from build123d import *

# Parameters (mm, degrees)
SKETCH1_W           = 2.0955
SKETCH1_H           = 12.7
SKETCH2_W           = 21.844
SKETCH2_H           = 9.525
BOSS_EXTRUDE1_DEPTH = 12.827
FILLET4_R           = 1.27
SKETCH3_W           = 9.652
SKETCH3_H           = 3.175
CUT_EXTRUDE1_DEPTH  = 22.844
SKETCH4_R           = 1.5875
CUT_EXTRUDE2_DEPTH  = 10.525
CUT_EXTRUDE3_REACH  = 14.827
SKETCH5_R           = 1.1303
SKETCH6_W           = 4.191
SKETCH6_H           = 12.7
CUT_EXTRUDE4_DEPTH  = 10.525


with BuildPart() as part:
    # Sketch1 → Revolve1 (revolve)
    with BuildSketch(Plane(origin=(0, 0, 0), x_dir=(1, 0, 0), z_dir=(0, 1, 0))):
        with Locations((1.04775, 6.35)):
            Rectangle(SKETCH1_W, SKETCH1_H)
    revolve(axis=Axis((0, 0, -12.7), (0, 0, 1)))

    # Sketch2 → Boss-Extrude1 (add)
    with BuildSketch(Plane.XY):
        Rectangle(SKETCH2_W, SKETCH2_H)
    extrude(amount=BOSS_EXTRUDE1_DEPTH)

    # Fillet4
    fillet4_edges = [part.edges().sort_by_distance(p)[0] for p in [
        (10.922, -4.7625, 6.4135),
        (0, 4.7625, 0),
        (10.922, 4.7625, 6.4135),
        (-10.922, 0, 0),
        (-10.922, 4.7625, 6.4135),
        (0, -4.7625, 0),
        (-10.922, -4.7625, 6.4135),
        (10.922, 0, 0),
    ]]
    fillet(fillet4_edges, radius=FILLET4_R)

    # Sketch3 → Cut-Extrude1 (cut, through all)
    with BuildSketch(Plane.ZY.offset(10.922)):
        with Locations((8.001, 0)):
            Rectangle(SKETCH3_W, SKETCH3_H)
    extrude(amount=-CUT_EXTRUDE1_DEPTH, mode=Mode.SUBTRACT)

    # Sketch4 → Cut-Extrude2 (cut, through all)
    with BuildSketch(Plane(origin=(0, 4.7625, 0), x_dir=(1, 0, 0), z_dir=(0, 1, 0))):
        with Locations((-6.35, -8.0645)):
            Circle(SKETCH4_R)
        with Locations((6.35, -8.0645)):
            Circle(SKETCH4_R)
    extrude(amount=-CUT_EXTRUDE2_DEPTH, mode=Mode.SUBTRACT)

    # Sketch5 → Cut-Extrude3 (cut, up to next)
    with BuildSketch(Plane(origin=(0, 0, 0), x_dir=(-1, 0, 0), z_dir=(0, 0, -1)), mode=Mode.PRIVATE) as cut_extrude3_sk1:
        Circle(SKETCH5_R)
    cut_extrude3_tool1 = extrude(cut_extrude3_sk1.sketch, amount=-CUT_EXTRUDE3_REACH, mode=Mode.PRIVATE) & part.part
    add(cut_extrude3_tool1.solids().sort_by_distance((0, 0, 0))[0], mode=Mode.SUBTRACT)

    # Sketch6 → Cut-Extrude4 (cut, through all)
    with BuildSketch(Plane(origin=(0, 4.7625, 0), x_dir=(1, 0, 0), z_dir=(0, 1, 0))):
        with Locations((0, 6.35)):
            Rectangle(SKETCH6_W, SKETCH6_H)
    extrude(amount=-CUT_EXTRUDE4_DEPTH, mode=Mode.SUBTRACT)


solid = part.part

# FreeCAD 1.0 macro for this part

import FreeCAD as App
import Part
import Sketcher

V = App.Vector
Q = App.Units.Quantity


def edges_at(feature, points):
    """Names of the edges that pass closest to the given points."""
    edges = feature.Shape.Edges
    near = lambda p: min(range(len(edges)), key=lambda i: edges[i].distToShape(Part.Vertex(*p))[0])
    return sorted({f"Edge{near(p) + 1}" for p in points})

doc = App.newDocument("Part")
body = doc.addObject("PartDesign::Body", "Body")

# Sketch on XZ plane
sketch1 = body.newObject("Sketcher::SketchObject", "Sketch")
sketch1.AttachmentSupport = (doc.getObject("XZ_Plane"), [""])
sketch1.MapMode = "FlatFace"
sketch1.addGeometry([
    Part.LineSegment(V(0, -12.7, 0), V(0, 0, 0)),
    Part.LineSegment(V(0, 0, 0), V(2.0955, 0, 0)),
    Part.LineSegment(V(2.0955, 0, 0), V(2.0955, -12.7, 0)),
    Part.LineSegment(V(2.0955, -12.7, 0), V(0, -12.7, 0)),
], False)
sketch1.addConstraint([
    Sketcher.Constraint("Coincident", 0, 2, 1, 1),
    Sketcher.Constraint("Coincident", 1, 2, 2, 1),
    Sketcher.Constraint("Coincident", 2, 2, 3, 1),
    Sketcher.Constraint("Coincident", 3, 2, 0, 1),
    Sketcher.Constraint("Vertical", 0),
    Sketcher.Constraint("Horizontal", 1),
    Sketcher.Constraint("Vertical", 2),
    Sketcher.Constraint("Horizontal", 3),
    Sketcher.Constraint("Coincident", 0, 2, -1, 1),
    Sketcher.Constraint("DistanceY", 0, 1, 0, 2, Q("0.5 in")),
    Sketcher.Constraint("DistanceX", 1, 1, 1, 2, Q("0.0825 in")),
])
revolution = body.newObject("PartDesign::Revolution", "Revolution")
revolution.Profile = sketch1
revolution.ReferenceAxis = (sketch1, ["V_Axis"])
revolution.Angle = 360

# Sketch on XY plane
sketch2 = body.newObject("Sketcher::SketchObject", "Sketch001")
sketch2.AttachmentSupport = (doc.getObject("XY_Plane"), [""])
sketch2.MapMode = "FlatFace"
sketch2.addGeometry([
    Part.LineSegment(V(-10.922, 4.7625, 0), V(-10.922, -4.7625, 0)),
    Part.LineSegment(V(-10.922, -4.7625, 0), V(10.922, -4.7625, 0)),
    Part.LineSegment(V(10.922, -4.7625, 0), V(10.922, 4.7625, 0)),
    Part.LineSegment(V(10.922, 4.7625, 0), V(-10.922, 4.7625, 0)),
], False)
sketch2.addConstraint([
    Sketcher.Constraint("Coincident", 0, 2, 1, 1),
    Sketcher.Constraint("Coincident", 1, 2, 2, 1),
    Sketcher.Constraint("Coincident", 2, 2, 3, 1),
    Sketcher.Constraint("Coincident", 3, 2, 0, 1),
    Sketcher.Constraint("Vertical", 0),
    Sketcher.Constraint("Horizontal", 1),
    Sketcher.Constraint("Vertical", 2),
    Sketcher.Constraint("Horizontal", 3),
    Sketcher.Constraint("Symmetric", 0, 2, 2, 2, -1, 1),
    Sketcher.Constraint("DistanceX", 1, 1, 1, 2, Q("0.86 in")),
    Sketcher.Constraint("DistanceY", 0, 2, 0, 1, Q("0.375 in")),
])
pad1 = body.newObject("PartDesign::Pad", "Pad")
pad1.Profile = sketch2
pad1.Length = Q("0.505 in")
doc.recompute()

fillet = body.newObject("PartDesign::Fillet", "Fillet")
fillet.Base = (pad1, edges_at(pad1, [
    (10.922, -4.763, 6.413),
    (0, 4.763, 0),
    (10.922, 4.763, 6.413),
    (-10.922, 0, 0),
    (-10.922, 4.763, 6.413),
    (0, -4.763, 0),
    (-10.922, -4.763, 6.413),
    (10.922, 0, 0),
]))
fillet.Radius = Q("0.05 in")

# Sketch on YZ plane
sketch3 = body.newObject("Sketcher::SketchObject", "Sketch002")
sketch3.AttachmentSupport = (doc.getObject("YZ_Plane"), [""])
sketch3.MapMode = "FlatFace"
sketch3.AttachmentOffset = App.Placement(V(0, 0, -0.43 * 25.4), App.Rotation())
sketch3.addGeometry([
    Part.LineSegment(V(1.5875, 3.175, 0), V(-1.5875, 3.175, 0)),
    Part.LineSegment(V(-1.5875, 3.175, 0), V(-1.5875, 12.827, 0)),
    Part.LineSegment(V(-1.5875, 12.827, 0), V(1.5875, 12.827, 0)),
    Part.LineSegment(V(1.5875, 12.827, 0), V(1.5875, 3.175, 0)),
], False)
sketch3.addConstraint([
    Sketcher.Constraint("Coincident", 0, 2, 1, 1),
    Sketcher.Constraint("Coincident", 1, 2, 2, 1),
    Sketcher.Constraint("Coincident", 2, 2, 3, 1),
    Sketcher.Constraint("Coincident", 3, 2, 0, 1),
    Sketcher.Constraint("Horizontal", 0),
    Sketcher.Constraint("Vertical", 1),
    Sketcher.Constraint("Horizontal", 2),
    Sketcher.Constraint("Vertical", 3),
    Sketcher.Constraint("DistanceY", 1, 1, 1, 2, Q("0.38 in")),
    Sketcher.Constraint("DistanceX", 0, 2, 0, 1, Q("0.125 in")),
    Sketcher.Constraint("DistanceX", 0, 2, -1, 1, Q("0.0625 in")),
    Sketcher.Constraint("DistanceY", -1, 1, 0, 2, Q("0.125 in")),
])
pocket1 = body.newObject("PartDesign::Pocket", "Pocket")
pocket1.Profile = sketch3
pocket1.Type = "ThroughAll"
pocket1.Reversed = True

# Sketch on XZ plane
sketch4 = body.newObject("Sketcher::SketchObject", "Sketch003")
sketch4.AttachmentSupport = (doc.getObject("XZ_Plane"), [""])
sketch4.MapMode = "FlatFace"
sketch4.AttachmentOffset = App.Placement(V(0, 0, -0.1875 * 25.4), App.Rotation())
sketch4.addGeometry([
    Part.Circle(V(-6.35, 8.0645, 0), V(0, 0, 1), 1.5875),
    Part.Circle(V(6.35, 8.0645, 0), V(0, 0, 1), 1.5875),
], False)
sketch4.addConstraint([
    Sketcher.Constraint("Equal", 0, 1),
    Sketcher.Constraint("Symmetric", 0, 3, 1, 3, -2),
    Sketcher.Constraint("Diameter", 0, Q("0.125 in")),
    Sketcher.Constraint("DistanceX", 0, 3, 1, 3, Q("0.5 in")),
    Sketcher.Constraint("DistanceY", -1, 1, 0, 3, Q("0.3175 in")),
])
pocket2 = body.newObject("PartDesign::Pocket", "Pocket001")
pocket2.Profile = sketch4
pocket2.Type = "ThroughAll"
pocket2.Reversed = True

# Sketch on XY plane
sketch5 = body.newObject("Sketcher::SketchObject", "Sketch004")
sketch5.AttachmentSupport = (doc.getObject("XY_Plane"), [""])
sketch5.MapMode = "FlatFace"
sketch5.addGeometry(Part.Circle(V(0, 0, 0), V(0, 0, 1), 1.1303), False)
sketch5.addConstraint([
    Sketcher.Constraint("Coincident", 0, 3, -1, 1),
    Sketcher.Constraint("Diameter", 0, Q("0.089 in")),
])
pocket3 = body.newObject("PartDesign::Pocket", "Pocket002")
pocket3.Profile = sketch5
pocket3.Type = "UpToFirst"
pocket3.Reversed = True

# Sketch on XZ plane
sketch6 = body.newObject("Sketcher::SketchObject", "Sketch005")
sketch6.AttachmentSupport = (doc.getObject("XZ_Plane"), [""])
sketch6.MapMode = "FlatFace"
sketch6.AttachmentOffset = App.Placement(V(0, 0, -0.1875 * 25.4), App.Rotation())
sketch6.addGeometry([
    Part.LineSegment(V(-2.0955, -12.7, 0), V(-2.0955, 0, 0)),
    Part.LineSegment(V(-2.0955, 0, 0), V(2.0955, 0, 0)),
    Part.LineSegment(V(2.0955, 0, 0), V(2.0955, -12.7, 0)),
    Part.LineSegment(V(2.0955, -12.7, 0), V(-2.0955, -12.7, 0)),
], False)
sketch6.addConstraint([
    Sketcher.Constraint("Coincident", 0, 2, 1, 1),
    Sketcher.Constraint("Coincident", 1, 2, 2, 1),
    Sketcher.Constraint("Coincident", 2, 2, 3, 1),
    Sketcher.Constraint("Coincident", 3, 2, 0, 1),
    Sketcher.Constraint("Vertical", 0),
    Sketcher.Constraint("Horizontal", 1),
    Sketcher.Constraint("Vertical", 2),
    Sketcher.Constraint("Horizontal", 3),
    Sketcher.Constraint("Symmetric", 0, 2, 1, 2, -1, 1),
    Sketcher.Constraint("DistanceY", 0, 1, 0, 2, Q("0.5 in")),
    Sketcher.Constraint("DistanceX", 1, 1, 1, 2, Q("0.165 in")),
])
pocket4 = body.newObject("PartDesign::Pocket", "Pocket003")
pocket4.Profile = sketch6
pocket4.Type = "ThroughAll"
pocket4.Reversed = True

doc.recompute()
